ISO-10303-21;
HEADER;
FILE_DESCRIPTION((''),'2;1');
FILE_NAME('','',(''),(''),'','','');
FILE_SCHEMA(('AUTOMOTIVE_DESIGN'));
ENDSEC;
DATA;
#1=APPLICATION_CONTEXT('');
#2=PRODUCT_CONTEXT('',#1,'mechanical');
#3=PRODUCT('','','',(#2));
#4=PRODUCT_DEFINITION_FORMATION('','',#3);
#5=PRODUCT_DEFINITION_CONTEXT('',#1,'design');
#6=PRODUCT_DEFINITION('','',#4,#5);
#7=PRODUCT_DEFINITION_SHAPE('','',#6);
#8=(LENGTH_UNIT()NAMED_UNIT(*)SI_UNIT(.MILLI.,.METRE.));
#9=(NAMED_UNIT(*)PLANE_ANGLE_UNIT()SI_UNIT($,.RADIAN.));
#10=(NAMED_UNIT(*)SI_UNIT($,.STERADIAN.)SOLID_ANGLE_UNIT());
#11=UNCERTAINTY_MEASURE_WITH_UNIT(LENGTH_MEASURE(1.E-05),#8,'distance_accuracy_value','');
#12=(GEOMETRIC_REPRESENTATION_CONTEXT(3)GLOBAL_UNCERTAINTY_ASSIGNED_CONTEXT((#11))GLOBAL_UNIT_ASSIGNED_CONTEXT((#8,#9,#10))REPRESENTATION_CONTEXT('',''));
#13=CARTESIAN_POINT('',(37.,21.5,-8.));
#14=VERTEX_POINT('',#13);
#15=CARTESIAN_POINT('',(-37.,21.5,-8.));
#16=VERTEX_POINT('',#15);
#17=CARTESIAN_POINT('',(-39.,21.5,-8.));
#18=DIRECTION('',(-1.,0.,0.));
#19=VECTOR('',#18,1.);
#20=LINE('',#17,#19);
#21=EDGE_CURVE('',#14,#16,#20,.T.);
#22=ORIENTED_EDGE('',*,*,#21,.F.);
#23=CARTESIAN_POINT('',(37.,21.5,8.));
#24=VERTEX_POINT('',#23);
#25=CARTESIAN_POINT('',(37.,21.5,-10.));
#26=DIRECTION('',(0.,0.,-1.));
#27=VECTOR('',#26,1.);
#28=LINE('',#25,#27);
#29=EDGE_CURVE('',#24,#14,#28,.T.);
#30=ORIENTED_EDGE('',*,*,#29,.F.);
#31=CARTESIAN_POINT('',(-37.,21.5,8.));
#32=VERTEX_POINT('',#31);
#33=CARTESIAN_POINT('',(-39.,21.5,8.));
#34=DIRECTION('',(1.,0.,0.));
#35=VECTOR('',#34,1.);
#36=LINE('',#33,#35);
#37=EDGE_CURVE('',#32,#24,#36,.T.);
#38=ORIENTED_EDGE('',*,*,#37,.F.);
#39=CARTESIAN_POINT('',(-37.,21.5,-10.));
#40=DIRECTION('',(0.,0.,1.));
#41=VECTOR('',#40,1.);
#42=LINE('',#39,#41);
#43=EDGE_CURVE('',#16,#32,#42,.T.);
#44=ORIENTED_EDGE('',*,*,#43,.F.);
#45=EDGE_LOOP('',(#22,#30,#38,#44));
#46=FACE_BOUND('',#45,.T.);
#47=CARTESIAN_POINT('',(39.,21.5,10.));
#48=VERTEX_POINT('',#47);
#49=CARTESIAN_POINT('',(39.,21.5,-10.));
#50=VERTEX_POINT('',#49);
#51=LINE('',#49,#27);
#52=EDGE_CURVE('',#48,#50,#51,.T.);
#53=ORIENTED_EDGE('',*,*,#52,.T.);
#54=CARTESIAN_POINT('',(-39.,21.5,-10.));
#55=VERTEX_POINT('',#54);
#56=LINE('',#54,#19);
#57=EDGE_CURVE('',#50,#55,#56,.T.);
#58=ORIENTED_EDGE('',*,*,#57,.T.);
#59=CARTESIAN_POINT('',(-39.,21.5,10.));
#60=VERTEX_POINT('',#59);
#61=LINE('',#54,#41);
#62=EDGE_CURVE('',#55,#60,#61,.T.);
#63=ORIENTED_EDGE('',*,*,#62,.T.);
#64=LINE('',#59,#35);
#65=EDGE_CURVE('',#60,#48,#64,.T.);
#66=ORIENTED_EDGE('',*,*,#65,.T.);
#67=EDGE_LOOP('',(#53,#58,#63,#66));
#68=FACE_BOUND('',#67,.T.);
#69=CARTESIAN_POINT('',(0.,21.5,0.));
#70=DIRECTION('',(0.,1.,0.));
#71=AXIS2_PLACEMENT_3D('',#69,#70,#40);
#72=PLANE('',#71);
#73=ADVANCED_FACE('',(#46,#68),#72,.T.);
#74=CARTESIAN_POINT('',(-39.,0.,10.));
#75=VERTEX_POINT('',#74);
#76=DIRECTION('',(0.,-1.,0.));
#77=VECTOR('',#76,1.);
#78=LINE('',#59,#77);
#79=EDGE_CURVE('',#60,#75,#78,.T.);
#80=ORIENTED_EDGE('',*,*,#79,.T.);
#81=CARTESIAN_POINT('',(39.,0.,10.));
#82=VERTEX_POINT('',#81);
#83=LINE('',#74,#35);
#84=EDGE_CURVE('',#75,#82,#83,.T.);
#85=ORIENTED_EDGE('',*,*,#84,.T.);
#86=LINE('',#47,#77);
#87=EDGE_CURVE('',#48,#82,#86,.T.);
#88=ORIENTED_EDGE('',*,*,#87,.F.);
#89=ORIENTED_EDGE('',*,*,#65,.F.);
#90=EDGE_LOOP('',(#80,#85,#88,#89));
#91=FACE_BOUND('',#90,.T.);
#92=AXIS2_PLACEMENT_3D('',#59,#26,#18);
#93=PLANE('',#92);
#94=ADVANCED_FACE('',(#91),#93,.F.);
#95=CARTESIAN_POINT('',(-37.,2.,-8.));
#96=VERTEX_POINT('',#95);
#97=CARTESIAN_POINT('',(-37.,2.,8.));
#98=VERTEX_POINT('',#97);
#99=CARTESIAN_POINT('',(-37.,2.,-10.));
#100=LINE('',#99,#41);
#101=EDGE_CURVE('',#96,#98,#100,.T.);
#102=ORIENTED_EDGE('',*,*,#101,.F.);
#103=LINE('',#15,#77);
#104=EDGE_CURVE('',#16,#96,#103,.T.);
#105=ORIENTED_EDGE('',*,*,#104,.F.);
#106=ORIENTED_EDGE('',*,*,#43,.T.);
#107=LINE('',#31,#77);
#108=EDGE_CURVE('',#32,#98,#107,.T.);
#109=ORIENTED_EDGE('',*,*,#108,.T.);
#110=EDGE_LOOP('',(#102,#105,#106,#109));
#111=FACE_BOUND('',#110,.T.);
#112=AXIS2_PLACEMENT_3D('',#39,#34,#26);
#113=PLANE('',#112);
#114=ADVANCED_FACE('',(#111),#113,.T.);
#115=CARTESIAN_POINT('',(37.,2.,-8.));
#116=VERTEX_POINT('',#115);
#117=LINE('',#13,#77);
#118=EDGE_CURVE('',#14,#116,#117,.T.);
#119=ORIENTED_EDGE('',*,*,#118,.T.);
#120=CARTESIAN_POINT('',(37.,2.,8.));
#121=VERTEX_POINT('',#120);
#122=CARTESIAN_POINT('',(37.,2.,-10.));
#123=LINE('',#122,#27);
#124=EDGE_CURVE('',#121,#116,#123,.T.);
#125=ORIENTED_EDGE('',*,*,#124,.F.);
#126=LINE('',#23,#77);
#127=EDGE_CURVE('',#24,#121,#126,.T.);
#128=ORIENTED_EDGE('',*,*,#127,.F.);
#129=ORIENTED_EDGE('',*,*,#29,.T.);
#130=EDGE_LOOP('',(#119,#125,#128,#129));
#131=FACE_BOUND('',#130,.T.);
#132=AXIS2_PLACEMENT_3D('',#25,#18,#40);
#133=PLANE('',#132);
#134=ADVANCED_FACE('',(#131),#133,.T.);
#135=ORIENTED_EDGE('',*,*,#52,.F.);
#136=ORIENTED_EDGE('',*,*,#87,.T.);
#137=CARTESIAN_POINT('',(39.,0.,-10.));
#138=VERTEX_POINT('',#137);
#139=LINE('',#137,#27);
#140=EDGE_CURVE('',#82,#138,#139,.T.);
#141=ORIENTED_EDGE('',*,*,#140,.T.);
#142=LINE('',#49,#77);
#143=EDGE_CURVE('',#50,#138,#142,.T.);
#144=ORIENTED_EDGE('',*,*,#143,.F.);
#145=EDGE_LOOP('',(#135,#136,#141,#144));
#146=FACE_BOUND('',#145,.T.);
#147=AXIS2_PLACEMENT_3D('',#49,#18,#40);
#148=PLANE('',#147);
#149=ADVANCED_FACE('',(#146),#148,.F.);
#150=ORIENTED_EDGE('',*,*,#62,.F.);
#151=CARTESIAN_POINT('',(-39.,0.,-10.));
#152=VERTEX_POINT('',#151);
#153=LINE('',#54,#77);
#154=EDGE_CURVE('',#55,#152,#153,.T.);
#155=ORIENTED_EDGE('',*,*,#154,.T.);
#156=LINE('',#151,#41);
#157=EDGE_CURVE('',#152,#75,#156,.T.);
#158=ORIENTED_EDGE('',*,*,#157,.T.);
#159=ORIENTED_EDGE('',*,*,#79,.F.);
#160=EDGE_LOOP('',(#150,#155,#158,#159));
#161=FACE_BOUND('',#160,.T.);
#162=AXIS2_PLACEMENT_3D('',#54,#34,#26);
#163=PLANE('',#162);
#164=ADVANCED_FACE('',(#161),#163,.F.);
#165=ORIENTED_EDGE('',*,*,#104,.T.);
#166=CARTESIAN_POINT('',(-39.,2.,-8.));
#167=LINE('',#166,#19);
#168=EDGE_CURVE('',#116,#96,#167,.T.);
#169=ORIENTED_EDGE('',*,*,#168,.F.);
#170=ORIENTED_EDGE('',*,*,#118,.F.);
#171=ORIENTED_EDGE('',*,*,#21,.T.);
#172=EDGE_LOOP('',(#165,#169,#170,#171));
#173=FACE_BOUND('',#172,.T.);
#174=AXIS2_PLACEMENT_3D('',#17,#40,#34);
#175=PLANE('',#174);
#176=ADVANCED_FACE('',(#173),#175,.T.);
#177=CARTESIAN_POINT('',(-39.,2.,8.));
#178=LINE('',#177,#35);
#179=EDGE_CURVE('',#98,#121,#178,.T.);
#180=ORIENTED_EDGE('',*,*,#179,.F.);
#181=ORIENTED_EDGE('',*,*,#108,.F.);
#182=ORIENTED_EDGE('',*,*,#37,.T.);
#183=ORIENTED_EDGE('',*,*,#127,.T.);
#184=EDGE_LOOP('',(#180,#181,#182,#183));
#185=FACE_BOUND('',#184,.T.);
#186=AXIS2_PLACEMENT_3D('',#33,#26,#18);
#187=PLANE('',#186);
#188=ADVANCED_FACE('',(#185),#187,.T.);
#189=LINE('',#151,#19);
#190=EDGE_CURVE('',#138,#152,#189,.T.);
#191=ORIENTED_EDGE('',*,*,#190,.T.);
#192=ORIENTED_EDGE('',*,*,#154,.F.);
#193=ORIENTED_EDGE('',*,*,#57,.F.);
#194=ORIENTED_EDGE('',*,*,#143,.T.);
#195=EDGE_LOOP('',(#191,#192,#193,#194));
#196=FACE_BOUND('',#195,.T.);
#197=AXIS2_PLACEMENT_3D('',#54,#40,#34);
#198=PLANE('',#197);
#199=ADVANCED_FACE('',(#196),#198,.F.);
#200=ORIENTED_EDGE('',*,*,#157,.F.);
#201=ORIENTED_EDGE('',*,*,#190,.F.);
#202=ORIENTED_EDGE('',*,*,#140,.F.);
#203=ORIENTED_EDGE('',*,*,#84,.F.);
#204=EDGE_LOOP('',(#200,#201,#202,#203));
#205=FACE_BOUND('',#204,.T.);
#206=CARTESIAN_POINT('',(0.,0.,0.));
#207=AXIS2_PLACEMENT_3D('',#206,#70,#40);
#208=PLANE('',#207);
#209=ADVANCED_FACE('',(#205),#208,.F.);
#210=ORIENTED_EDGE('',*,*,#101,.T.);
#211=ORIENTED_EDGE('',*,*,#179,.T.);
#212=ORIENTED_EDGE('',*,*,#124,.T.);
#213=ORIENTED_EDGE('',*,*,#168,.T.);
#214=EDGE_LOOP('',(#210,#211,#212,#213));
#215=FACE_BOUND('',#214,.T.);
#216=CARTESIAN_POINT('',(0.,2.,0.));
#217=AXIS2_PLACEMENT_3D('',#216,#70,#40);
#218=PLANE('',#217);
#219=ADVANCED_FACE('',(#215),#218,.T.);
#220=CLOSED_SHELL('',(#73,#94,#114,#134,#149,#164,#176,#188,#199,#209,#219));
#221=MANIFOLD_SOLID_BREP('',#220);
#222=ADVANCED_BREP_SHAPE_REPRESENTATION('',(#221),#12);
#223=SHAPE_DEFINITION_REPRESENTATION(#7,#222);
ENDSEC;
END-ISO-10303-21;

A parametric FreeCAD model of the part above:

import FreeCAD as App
import Part
import Sketcher


def faces_at(feature, points):
    """Names of the faces that lie closest to the given points."""
    faces = feature.Shape.Faces
    near = lambda p: min(range(len(faces)), key=lambda i: faces[i].distToShape(Part.Vertex(*p))[0])
    return sorted({f"Face{near(p) + 1}" for p in points})


def add_polygon(sketch, points):
    """Adds a closed chain of lines whose ends are joined by coincident constraints."""
    first, n = sketch.GeometryCount, len(points)
    for a, b in zip(points, points[1:] + points[:1]):
        sketch.addGeometry(Part.LineSegment(App.Vector(*a, 0), App.Vector(*b, 0)), False)
    for i in range(n):
        sketch.addConstraint(Sketcher.Constraint("Coincident", first + i, 2, first + (i + 1) % n, 1))

doc = App.newDocument("Part")
body = doc.addObject("PartDesign::Body", "Body")

# Sketch on XZ plane
sketch1 = body.newObject("Sketcher::SketchObject", "Sketch")
sketch1.AttachmentSupport = (doc.getObject("XZ_Plane"), [""])
sketch1.MapMode = "FlatFace"
add_polygon(sketch1, [(-39, -10), (-39, 10), (39, 10), (39, -10)])  # lines 0-3
sketch1.addConstraint([
    Sketcher.Constraint("Vertical", 0),
    Sketcher.Constraint("Horizontal", 1),
    Sketcher.Constraint("Vertical", 2),
    Sketcher.Constraint("Horizontal", 3),
    Sketcher.Constraint("Symmetric", 0, 2, 2, 2, -1, 1),
    Sketcher.Constraint("DistanceX", 1, 1, 1, 2, 78.0),
    Sketcher.Constraint("DistanceY", 0, 1, 0, 2, 20.0),
])
pad1 = body.newObject("PartDesign::Pad", "Pad")
pad1.Profile = sketch1
pad1.Length = 21.5
pad1.Reversed = True
doc.recompute()

thickness = body.newObject("PartDesign::Thickness", "Thickness")
thickness.Base = (pad1, faces_at(pad1, [(0, 21.5, 0)]))
thickness.Value = 2
thickness.Reversed = True
thickness.Join = "Intersection"

doc.recompute()
